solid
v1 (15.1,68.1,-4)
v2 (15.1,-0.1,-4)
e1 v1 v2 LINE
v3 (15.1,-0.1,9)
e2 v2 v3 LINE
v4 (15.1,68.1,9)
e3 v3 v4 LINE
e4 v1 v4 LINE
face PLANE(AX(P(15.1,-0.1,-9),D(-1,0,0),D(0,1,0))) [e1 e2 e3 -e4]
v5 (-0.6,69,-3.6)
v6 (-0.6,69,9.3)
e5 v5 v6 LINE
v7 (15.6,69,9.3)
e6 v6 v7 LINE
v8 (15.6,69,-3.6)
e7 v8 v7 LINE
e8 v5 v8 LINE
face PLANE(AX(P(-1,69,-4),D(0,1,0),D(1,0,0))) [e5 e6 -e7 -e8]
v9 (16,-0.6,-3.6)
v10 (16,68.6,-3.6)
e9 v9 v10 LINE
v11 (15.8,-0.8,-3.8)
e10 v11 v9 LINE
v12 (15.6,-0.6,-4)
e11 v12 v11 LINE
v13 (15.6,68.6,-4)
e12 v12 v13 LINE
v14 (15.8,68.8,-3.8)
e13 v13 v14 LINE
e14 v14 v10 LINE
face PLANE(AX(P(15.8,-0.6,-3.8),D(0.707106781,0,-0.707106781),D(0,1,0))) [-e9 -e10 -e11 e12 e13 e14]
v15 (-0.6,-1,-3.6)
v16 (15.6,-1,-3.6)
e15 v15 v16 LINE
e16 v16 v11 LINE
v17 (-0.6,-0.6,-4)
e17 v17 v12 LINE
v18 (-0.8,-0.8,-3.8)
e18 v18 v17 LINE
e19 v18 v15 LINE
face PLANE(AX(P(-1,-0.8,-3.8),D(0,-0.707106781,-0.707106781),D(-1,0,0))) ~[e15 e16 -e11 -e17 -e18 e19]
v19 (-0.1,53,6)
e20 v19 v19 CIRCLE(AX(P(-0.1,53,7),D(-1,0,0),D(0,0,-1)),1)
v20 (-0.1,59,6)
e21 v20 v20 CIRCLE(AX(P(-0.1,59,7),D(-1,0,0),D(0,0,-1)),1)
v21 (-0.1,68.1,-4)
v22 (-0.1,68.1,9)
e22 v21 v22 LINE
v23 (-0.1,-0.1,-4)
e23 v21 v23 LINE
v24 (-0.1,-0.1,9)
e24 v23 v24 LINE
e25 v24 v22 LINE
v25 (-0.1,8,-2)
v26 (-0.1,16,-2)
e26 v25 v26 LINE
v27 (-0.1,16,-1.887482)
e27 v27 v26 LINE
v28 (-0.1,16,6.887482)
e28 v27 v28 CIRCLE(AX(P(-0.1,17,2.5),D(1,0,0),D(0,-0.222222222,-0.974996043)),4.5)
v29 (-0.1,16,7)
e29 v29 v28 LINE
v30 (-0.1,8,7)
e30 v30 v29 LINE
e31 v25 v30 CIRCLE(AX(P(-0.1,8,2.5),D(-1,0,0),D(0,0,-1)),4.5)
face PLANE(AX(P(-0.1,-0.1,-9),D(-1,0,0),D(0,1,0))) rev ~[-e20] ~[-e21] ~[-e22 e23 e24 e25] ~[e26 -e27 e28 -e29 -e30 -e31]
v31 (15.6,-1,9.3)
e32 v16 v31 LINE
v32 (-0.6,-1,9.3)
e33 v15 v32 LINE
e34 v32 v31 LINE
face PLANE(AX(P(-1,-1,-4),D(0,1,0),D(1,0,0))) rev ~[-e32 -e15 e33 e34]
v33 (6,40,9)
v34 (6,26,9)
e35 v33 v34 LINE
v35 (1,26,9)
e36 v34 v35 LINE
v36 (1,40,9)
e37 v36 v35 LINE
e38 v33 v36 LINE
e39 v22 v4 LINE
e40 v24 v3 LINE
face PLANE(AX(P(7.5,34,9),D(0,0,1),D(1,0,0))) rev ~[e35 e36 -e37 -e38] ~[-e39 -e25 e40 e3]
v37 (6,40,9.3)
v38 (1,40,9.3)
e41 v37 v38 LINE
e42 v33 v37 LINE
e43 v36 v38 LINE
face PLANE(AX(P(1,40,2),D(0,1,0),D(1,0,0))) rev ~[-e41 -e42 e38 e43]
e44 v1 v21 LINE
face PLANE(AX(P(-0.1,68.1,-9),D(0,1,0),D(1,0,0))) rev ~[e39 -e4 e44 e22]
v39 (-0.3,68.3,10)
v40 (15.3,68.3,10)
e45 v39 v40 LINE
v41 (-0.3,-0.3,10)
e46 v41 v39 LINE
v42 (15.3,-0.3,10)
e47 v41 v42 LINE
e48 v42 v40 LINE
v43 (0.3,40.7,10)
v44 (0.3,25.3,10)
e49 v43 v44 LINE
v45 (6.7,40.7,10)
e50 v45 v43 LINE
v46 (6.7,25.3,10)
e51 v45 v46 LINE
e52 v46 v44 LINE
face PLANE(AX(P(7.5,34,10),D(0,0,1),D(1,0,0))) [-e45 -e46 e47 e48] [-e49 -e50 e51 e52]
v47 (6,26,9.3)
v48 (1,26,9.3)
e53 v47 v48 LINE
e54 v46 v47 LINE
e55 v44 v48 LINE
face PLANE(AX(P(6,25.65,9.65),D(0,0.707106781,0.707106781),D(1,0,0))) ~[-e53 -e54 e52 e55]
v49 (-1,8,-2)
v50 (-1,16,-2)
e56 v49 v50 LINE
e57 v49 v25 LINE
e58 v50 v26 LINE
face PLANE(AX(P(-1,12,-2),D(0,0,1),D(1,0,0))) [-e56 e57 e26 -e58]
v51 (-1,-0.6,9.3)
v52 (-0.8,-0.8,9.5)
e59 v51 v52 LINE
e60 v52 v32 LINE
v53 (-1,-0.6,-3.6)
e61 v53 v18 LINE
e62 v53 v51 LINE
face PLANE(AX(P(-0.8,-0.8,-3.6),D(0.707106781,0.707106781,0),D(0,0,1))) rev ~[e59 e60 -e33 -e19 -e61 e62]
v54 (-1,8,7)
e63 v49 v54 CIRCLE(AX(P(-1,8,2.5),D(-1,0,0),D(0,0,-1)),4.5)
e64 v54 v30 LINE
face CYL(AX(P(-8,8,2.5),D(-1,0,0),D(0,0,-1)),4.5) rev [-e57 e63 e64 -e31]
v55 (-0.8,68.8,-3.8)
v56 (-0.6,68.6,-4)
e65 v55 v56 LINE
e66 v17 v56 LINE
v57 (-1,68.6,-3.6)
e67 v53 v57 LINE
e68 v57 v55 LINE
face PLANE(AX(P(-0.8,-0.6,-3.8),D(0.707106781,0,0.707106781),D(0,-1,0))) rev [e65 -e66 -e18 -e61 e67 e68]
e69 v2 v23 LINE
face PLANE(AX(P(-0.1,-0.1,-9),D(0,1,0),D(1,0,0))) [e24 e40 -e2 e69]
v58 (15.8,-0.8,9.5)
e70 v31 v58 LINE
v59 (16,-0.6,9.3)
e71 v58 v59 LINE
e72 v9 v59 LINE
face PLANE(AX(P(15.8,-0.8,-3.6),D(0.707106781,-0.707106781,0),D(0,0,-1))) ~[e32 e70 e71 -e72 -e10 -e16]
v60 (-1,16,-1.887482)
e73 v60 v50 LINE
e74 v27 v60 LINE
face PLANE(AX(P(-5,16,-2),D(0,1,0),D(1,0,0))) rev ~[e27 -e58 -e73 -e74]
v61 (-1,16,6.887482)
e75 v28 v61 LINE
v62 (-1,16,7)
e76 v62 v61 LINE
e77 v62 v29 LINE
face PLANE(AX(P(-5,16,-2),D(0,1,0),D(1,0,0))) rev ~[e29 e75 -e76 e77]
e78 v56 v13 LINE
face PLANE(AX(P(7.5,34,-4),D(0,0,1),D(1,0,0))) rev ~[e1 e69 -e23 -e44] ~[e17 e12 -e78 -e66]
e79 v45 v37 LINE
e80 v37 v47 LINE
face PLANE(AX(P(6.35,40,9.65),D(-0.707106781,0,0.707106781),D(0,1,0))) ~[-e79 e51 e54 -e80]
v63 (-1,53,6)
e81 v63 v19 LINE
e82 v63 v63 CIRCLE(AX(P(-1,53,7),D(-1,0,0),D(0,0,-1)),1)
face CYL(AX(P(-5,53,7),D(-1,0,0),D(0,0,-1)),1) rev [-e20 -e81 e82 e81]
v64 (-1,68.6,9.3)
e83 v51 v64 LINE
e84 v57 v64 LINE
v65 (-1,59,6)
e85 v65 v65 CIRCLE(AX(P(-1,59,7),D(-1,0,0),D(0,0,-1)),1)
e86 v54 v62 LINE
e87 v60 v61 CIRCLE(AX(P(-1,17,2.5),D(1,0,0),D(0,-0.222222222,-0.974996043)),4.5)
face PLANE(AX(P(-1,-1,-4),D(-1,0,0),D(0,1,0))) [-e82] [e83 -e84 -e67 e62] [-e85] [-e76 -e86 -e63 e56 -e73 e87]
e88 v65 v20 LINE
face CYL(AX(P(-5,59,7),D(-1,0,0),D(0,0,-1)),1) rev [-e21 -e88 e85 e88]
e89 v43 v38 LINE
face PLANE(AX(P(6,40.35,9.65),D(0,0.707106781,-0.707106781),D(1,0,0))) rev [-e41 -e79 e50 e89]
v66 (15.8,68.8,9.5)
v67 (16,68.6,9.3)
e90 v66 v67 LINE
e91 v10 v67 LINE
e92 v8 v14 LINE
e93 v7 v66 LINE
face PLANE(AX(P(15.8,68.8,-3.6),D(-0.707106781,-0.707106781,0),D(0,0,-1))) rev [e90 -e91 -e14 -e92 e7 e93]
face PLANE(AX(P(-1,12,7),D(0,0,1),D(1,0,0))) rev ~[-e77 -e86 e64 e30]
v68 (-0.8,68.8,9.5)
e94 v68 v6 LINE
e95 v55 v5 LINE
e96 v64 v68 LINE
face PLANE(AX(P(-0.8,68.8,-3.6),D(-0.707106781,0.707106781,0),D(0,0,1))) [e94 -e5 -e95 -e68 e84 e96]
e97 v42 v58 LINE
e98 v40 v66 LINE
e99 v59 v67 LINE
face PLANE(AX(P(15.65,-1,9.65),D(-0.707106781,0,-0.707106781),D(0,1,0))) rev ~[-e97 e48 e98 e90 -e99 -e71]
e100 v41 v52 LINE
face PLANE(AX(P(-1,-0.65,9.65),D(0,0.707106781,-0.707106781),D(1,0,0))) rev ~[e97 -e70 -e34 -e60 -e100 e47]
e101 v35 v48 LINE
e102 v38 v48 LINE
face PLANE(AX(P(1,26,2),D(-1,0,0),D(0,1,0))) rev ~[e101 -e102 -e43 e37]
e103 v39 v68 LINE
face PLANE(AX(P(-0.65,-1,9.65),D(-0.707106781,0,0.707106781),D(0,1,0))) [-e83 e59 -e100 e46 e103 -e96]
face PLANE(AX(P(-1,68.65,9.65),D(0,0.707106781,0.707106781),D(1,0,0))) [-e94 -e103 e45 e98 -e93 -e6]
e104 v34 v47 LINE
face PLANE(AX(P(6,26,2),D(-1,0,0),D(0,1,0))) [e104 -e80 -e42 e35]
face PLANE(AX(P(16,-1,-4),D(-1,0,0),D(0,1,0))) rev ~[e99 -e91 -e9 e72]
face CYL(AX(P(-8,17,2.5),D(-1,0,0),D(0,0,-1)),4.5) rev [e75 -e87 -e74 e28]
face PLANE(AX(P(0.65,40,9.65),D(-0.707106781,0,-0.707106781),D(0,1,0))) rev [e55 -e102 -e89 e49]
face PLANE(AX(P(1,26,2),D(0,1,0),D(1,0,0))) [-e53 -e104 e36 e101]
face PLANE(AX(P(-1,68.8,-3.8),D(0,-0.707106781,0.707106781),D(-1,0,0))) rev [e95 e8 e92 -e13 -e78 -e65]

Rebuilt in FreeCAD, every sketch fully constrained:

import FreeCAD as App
import Part
import Sketcher
from FreeCAD import Vector


def edges_at(feature, points):
    """Names of the edges that pass closest to the given points."""
    edges = feature.Shape.Edges
    near = lambda p: min(range(len(edges)), key=lambda i: edges[i].distToShape(Part.Vertex(*p))[0])
    return sorted({f"Edge{near(p) + 1}" for p in points})

doc = App.newDocument("Part")
body = doc.addObject("PartDesign::Body", "Body")

# Sketch on XY plane
sketch1 = body.newObject("Sketcher::SketchObject", "Sketch")
sketch1.AttachmentSupport = (doc.getObject("XY_Plane"), [""])
sketch1.MapMode = "FlatFace"
sketch1.AttachmentOffset = App.Placement(Vector(0, 0, -2), App.Rotation())
sketch1.addGeometry(Part.LineSegment(Vector(-5, 16, 0), Vector(-5, 8, 0)), False)
sketch1.addGeometry(Part.LineSegment(Vector(-5, 8, 0), Vector(3, 8, 0)), False)
sketch1.addGeometry(Part.LineSegment(Vector(3, 8, 0), Vector(3, 16, 0)), False)
sketch1.addGeometry(Part.LineSegment(Vector(3, 16, 0), Vector(-5, 16, 0)), False)
sketch1.addConstraint(Sketcher.Constraint("Coincident", 0, 2, 1, 1))
sketch1.addConstraint(Sketcher.Constraint("Coincident", 1, 2, 2, 1))
sketch1.addConstraint(Sketcher.Constraint("Coincident", 2, 2, 3, 1))
sketch1.addConstraint(Sketcher.Constraint("Coincident", 3, 2, 0, 1))
sketch1.addConstraint(Sketcher.Constraint("Vertical", 0))
sketch1.addConstraint(Sketcher.Constraint("Horizontal", 1))
sketch1.addConstraint(Sketcher.Constraint("Vertical", 2))
sketch1.addConstraint(Sketcher.Constraint("Horizontal", 3))
sketch1.addConstraint(Sketcher.Constraint("Equal", 3, 0))
sketch1.addConstraint(Sketcher.Constraint("DistanceX", 1, 1, 1, 2, 8.0))
sketch1.addConstraint(Sketcher.Constraint("DistanceX", 0, 2, -1, 1, 5.0))
sketch1.addConstraint(Sketcher.Constraint("DistanceY", -1, 1, 0, 2, 8.0))
pad1 = body.newObject("PartDesign::Pad", "Pad")
pad1.Profile = sketch1
pad1.Length = 9
body2 = doc.addObject("PartDesign::Body", "Body001")

# Sketch on YZ plane
sketch2 = body2.newObject("Sketcher::SketchObject", "Sketch001")
sketch2.AttachmentSupport = (doc.getObject("YZ_Plane001"), [""])
sketch2.MapMode = "FlatFace"
sketch2.AttachmentOffset = App.Placement(Vector(0, 0, -5), App.Rotation())
sketch2.addGeometry(Part.Circle(Vector(59, 7, 0), Vector(0, 0, 1), 1), False)
sketch2.addConstraint(Sketcher.Constraint("Diameter", 0, 2.0))
sketch2.addConstraint(Sketcher.Constraint("DistanceX", -1, 1, 0, 3, 59.0))
sketch2.addConstraint(Sketcher.Constraint("DistanceY", -1, 1, 0, 3, 7.0))
pad2 = body2.newObject("PartDesign::Pad", "Pad001")
pad2.Profile = sketch2
pad2.Length = 10
body3 = doc.addObject("PartDesign::Body", "Body002")

# Sketch on YZ plane
sketch3 = body3.newObject("Sketcher::SketchObject", "Sketch002")
sketch3.AttachmentSupport = (doc.getObject("YZ_Plane002"), [""])
sketch3.MapMode = "FlatFace"
sketch3.AttachmentOffset = App.Placement(Vector(0, 0, -5), App.Rotation())
sketch3.addGeometry(Part.Circle(Vector(53, 7, 0), Vector(0, 0, 1), 1), False)
sketch3.addConstraint(Sketcher.Constraint("Diameter", 0, 2.0))
sketch3.addConstraint(Sketcher.Constraint("DistanceX", -1, 1, 0, 3, 53.0))
sketch3.addConstraint(Sketcher.Constraint("DistanceY", -1, 1, 0, 3, 7.0))
pad3 = body3.newObject("PartDesign::Pad", "Pad002")
pad3.Profile = sketch3
pad3.Length = 10
body4 = doc.addObject("PartDesign::Body", "Body003")

# Sketch on YZ plane
sketch4 = body4.newObject("Sketcher::SketchObject", "Sketch003")
sketch4.AttachmentSupport = (doc.getObject("YZ_Plane003"), [""])
sketch4.MapMode = "FlatFace"
sketch4.AttachmentOffset = App.Placement(Vector(0, 0, -8), App.Rotation())
sketch4.addGeometry(Part.Circle(Vector(8, 2.5, 0), Vector(0, 0, 1), 4.5), False)
sketch4.addConstraint(Sketcher.Constraint("Diameter", 0, 9.0))
sketch4.addConstraint(Sketcher.Constraint("DistanceX", -1, 1, 0, 3, 8.0))
sketch4.addConstraint(Sketcher.Constraint("DistanceY", -1, 1, 0, 3, 2.5))
pad4 = body4.newObject("PartDesign::Pad", "Pad003")
pad4.Profile = sketch4
pad4.Length = 12
body5 = doc.addObject("PartDesign::Body", "Body004")
body5.AllowCompound = True

# Sketch on YZ plane
sketch5 = body5.newObject("Sketcher::SketchObject", "Sketch004")
sketch5.AttachmentSupport = (doc.getObject("YZ_Plane004"), [""])
sketch5.MapMode = "FlatFace"
sketch5.AttachmentOffset = App.Placement(Vector(0, 0, -8), App.Rotation())
sketch5.addGeometry(Part.Circle(Vector(17, 2.5, 0), Vector(0, 0, 1), 4.5), False)
sketch5.addConstraint(Sketcher.Constraint("Diameter", 0, 9.0))
sketch5.addConstraint(Sketcher.Constraint("DistanceX", -1, 1, 0, 3, 17.0))
sketch5.addConstraint(Sketcher.Constraint("DistanceY", -1, 1, 0, 3, 2.5))
pad5 = body5.newObject("PartDesign::Pad", "Pad004")
pad5.Profile = sketch5
pad5.Length = 12
doc.recompute()

boolean = body5.newObject("PartDesign::Boolean", "Boolean")
boolean.Type = "Fuse"
boolean.addObjects([body4])
body6 = doc.addObject("PartDesign::Body", "Body005")

# Sketch on XY plane
sketch6 = body6.newObject("Sketcher::SketchObject", "Sketch005")
sketch6.AttachmentSupport = (doc.getObject("XY_Plane005"), [""])
sketch6.MapMode = "FlatFace"
sketch6.AttachmentOffset = App.Placement(Vector(0, 0, 2), App.Rotation())
sketch6.addGeometry(Part.LineSegment(Vector(1, 40, 0), Vector(1, 26, 0)), False)
sketch6.addGeometry(Part.LineSegment(Vector(1, 26, 0), Vector(6, 26, 0)), False)
sketch6.addGeometry(Part.LineSegment(Vector(6, 26, 0), Vector(6, 40, 0)), False)
sketch6.addGeometry(Part.LineSegment(Vector(6, 40, 0), Vector(1, 40, 0)), False)
sketch6.addConstraint(Sketcher.Constraint("Coincident", 0, 2, 1, 1))
sketch6.addConstraint(Sketcher.Constraint("Coincident", 1, 2, 2, 1))
sketch6.addConstraint(Sketcher.Constraint("Coincident", 2, 2, 3, 1))
sketch6.addConstraint(Sketcher.Constraint("Coincident", 3, 2, 0, 1))
sketch6.addConstraint(Sketcher.Constraint("Vertical", 0))
sketch6.addConstraint(Sketcher.Constraint("Horizontal", 1))
sketch6.addConstraint(Sketcher.Constraint("Vertical", 2))
sketch6.addConstraint(Sketcher.Constraint("Horizontal", 3))
sketch6.addConstraint(Sketcher.Constraint("DistanceX", 1, 1, 1, 2, 5.0))
sketch6.addConstraint(Sketcher.Constraint("DistanceY", 0, 2, 0, 1, 14.0))
sketch6.addConstraint(Sketcher.Constraint("DistanceX", -1, 1, 0, 2, 1.0))
sketch6.addConstraint(Sketcher.Constraint("DistanceY", -1, 1, 0, 2, 26.0))
pad6 = body6.newObject("PartDesign::Pad", "Pad005")
pad6.Profile = sketch6
pad6.Length = 11
body7 = doc.addObject("PartDesign::Body", "Body006")

# Sketch on XY plane
sketch7 = body7.newObject("Sketcher::SketchObject", "Sketch006")
sketch7.AttachmentSupport = (doc.getObject("XY_Plane006"), [""])
sketch7.MapMode = "FlatFace"
sketch7.AttachmentOffset = App.Placement(Vector(0, 0, -9), App.Rotation())
sketch7.addGeometry(Part.LineSegment(Vector(0, 68, 0), Vector(0, 0, 0)), False)
sketch7.addGeometry(Part.LineSegment(Vector(0, 0, 0), Vector(15, 0, 0)), False)
sketch7.addGeometry(Part.LineSegment(Vector(15, 0, 0), Vector(15, 68, 0)), False)
sketch7.addGeometry(Part.LineSegment(Vector(15, 68, 0), Vector(0, 68, 0)), False)
sketch7.addConstraint(Sketcher.Constraint("Coincident", 0, 2, 1, 1))
sketch7.addConstraint(Sketcher.Constraint("Coincident", 1, 2, 2, 1))
sketch7.addConstraint(Sketcher.Constraint("Coincident", 2, 2, 3, 1))
sketch7.addConstraint(Sketcher.Constraint("Coincident", 3, 2, 0, 1))
sketch7.addConstraint(Sketcher.Constraint("Vertical", 0))
sketch7.addConstraint(Sketcher.Constraint("Horizontal", 1))
sketch7.addConstraint(Sketcher.Constraint("Vertical", 2))
sketch7.addConstraint(Sketcher.Constraint("Horizontal", 3))
sketch7.addConstraint(Sketcher.Constraint("DistanceX", 1, 1, 1, 2, 15.2))
sketch7.addConstraint(Sketcher.Constraint("DistanceY", 0, 2, 0, 1, 68.2))
sketch7.addConstraint(Sketcher.Constraint("DistanceX", 0, 2, -1, 1, 0.1))
sketch7.addConstraint(Sketcher.Constraint("DistanceY", 0, 2, -1, 1, 0.1))
pad7 = body7.newObject("PartDesign::Pad", "Pad006")
pad7.Profile = sketch7
pad7.Length = 18
body8 = doc.addObject("PartDesign::Body", "Body007")

# Sketch on XY plane
sketch8 = body8.newObject("Sketcher::SketchObject", "Sketch007")
sketch8.AttachmentSupport = (doc.getObject("XY_Plane007"), [""])
sketch8.MapMode = "FlatFace"
sketch8.AttachmentOffset = App.Placement(Vector(0, 0, -4), App.Rotation())
sketch8.addGeometry(Part.LineSegment(Vector(-1, 69, 0), Vector(-1, -1, 0)), False)
sketch8.addGeometry(Part.LineSegment(Vector(-1, -1, 0), Vector(16, -1, 0)), False)
sketch8.addGeometry(Part.LineSegment(Vector(16, -1, 0), Vector(16, 69, 0)), False)
sketch8.addGeometry(Part.LineSegment(Vector(16, 69, 0), Vector(-1, 69, 0)), False)
sketch8.addConstraint(Sketcher.Constraint("Coincident", 0, 2, 1, 1))
sketch8.addConstraint(Sketcher.Constraint("Coincident", 1, 2, 2, 1))
sketch8.addConstraint(Sketcher.Constraint("Coincident", 2, 2, 3, 1))
sketch8.addConstraint(Sketcher.Constraint("Coincident", 3, 2, 0, 1))
sketch8.addConstraint(Sketcher.Constraint("Vertical", 0))
sketch8.addConstraint(Sketcher.Constraint("Horizontal", 1))
sketch8.addConstraint(Sketcher.Constraint("Vertical", 2))
sketch8.addConstraint(Sketcher.Constraint("Horizontal", 3))
sketch8.addConstraint(Sketcher.Constraint("DistanceX", 1, 1, 1, 2, 17.0))
sketch8.addConstraint(Sketcher.Constraint("DistanceY", 0, 2, 0, 1, 70.0))
sketch8.addConstraint(Sketcher.Constraint("DistanceX", 0, 2, -1, 1, 1.0))
sketch8.addConstraint(Sketcher.Constraint("DistanceY", 0, 2, -1, 1, 1.0))
pad8 = body8.newObject("PartDesign::Pad", "Pad007")
pad8.Profile = sketch8
pad8.Length = 14
doc.recompute()

boolean2 = body8.newObject("PartDesign::Boolean", "Boolean001")
boolean2.Type = "Cut"
boolean2.addObjects([body7])
doc.recompute()

boolean3 = body8.newObject("PartDesign::Boolean", "Boolean002")
boolean3.Type = "Cut"
boolean3.addObjects([body6])
doc.recompute()

chamfer = body8.newObject("PartDesign::Chamfer", "Chamfer")
chamfer.Base = (boolean3, edges_at(boolean3, [
    (3.5, 26, 10),
    (6, 33, 10),
    (3.5, 40, 10),
    (1, 33, 10),
]))
chamfer.Size = 0.7
doc.recompute()

chamfer2 = body8.newObject("PartDesign::Chamfer", "Chamfer001")
chamfer2.Base = (chamfer, edges_at(chamfer, [
    (-1, 34, 10),
    (7.5, -1, 10),
    (16, 34, 10),
    (7.5, 69, 10),
]))
chamfer2.Size = 0.7
doc.recompute()

boolean4 = body8.newObject("PartDesign::Boolean", "Boolean003")
boolean4.Type = "Cut"
boolean4.addObjects([body5])
doc.recompute()

boolean5 = body8.newObject("PartDesign::Boolean", "Boolean004")
boolean5.Type = "Cut"
boolean5.addObjects([body3])
doc.recompute()

boolean6 = body8.newObject("PartDesign::Boolean", "Boolean005")
boolean6.Type = "Cut"
boolean6.addObjects([body2])
doc.recompute()

chamfer3 = body8.newObject("PartDesign::Chamfer", "Chamfer002")
chamfer3.Base = (boolean6, edges_at(boolean6, [(7.5, -1, -4), (7.5, 69, -4)]))
chamfer3.Size = 0.4
doc.recompute()

chamfer4 = body8.newObject("PartDesign::Chamfer", "Chamfer003")
chamfer4.Base = (chamfer3, edges_at(chamfer3, [(-1, 34, -4), (16, 34, -4)]))
chamfer4.Size = 0.4
doc.recompute()

chamfer5 = body8.newObject("PartDesign::Chamfer", "Chamfer004")
chamfer5.Base = (chamfer4, edges_at(chamfer4, [
    (-1, 69, 2.85),
    (-1, -1, 2.85),
    (16, -1, 2.85),
    (16, 69, 2.85),
]))
chamfer5.Size = 0.4
doc.recompute()

boolean7 = body8.newObject("PartDesign::Boolean", "Boolean006")
boolean7.Type = "Cut"
boolean7.addObjects([body])

doc.recompute()
